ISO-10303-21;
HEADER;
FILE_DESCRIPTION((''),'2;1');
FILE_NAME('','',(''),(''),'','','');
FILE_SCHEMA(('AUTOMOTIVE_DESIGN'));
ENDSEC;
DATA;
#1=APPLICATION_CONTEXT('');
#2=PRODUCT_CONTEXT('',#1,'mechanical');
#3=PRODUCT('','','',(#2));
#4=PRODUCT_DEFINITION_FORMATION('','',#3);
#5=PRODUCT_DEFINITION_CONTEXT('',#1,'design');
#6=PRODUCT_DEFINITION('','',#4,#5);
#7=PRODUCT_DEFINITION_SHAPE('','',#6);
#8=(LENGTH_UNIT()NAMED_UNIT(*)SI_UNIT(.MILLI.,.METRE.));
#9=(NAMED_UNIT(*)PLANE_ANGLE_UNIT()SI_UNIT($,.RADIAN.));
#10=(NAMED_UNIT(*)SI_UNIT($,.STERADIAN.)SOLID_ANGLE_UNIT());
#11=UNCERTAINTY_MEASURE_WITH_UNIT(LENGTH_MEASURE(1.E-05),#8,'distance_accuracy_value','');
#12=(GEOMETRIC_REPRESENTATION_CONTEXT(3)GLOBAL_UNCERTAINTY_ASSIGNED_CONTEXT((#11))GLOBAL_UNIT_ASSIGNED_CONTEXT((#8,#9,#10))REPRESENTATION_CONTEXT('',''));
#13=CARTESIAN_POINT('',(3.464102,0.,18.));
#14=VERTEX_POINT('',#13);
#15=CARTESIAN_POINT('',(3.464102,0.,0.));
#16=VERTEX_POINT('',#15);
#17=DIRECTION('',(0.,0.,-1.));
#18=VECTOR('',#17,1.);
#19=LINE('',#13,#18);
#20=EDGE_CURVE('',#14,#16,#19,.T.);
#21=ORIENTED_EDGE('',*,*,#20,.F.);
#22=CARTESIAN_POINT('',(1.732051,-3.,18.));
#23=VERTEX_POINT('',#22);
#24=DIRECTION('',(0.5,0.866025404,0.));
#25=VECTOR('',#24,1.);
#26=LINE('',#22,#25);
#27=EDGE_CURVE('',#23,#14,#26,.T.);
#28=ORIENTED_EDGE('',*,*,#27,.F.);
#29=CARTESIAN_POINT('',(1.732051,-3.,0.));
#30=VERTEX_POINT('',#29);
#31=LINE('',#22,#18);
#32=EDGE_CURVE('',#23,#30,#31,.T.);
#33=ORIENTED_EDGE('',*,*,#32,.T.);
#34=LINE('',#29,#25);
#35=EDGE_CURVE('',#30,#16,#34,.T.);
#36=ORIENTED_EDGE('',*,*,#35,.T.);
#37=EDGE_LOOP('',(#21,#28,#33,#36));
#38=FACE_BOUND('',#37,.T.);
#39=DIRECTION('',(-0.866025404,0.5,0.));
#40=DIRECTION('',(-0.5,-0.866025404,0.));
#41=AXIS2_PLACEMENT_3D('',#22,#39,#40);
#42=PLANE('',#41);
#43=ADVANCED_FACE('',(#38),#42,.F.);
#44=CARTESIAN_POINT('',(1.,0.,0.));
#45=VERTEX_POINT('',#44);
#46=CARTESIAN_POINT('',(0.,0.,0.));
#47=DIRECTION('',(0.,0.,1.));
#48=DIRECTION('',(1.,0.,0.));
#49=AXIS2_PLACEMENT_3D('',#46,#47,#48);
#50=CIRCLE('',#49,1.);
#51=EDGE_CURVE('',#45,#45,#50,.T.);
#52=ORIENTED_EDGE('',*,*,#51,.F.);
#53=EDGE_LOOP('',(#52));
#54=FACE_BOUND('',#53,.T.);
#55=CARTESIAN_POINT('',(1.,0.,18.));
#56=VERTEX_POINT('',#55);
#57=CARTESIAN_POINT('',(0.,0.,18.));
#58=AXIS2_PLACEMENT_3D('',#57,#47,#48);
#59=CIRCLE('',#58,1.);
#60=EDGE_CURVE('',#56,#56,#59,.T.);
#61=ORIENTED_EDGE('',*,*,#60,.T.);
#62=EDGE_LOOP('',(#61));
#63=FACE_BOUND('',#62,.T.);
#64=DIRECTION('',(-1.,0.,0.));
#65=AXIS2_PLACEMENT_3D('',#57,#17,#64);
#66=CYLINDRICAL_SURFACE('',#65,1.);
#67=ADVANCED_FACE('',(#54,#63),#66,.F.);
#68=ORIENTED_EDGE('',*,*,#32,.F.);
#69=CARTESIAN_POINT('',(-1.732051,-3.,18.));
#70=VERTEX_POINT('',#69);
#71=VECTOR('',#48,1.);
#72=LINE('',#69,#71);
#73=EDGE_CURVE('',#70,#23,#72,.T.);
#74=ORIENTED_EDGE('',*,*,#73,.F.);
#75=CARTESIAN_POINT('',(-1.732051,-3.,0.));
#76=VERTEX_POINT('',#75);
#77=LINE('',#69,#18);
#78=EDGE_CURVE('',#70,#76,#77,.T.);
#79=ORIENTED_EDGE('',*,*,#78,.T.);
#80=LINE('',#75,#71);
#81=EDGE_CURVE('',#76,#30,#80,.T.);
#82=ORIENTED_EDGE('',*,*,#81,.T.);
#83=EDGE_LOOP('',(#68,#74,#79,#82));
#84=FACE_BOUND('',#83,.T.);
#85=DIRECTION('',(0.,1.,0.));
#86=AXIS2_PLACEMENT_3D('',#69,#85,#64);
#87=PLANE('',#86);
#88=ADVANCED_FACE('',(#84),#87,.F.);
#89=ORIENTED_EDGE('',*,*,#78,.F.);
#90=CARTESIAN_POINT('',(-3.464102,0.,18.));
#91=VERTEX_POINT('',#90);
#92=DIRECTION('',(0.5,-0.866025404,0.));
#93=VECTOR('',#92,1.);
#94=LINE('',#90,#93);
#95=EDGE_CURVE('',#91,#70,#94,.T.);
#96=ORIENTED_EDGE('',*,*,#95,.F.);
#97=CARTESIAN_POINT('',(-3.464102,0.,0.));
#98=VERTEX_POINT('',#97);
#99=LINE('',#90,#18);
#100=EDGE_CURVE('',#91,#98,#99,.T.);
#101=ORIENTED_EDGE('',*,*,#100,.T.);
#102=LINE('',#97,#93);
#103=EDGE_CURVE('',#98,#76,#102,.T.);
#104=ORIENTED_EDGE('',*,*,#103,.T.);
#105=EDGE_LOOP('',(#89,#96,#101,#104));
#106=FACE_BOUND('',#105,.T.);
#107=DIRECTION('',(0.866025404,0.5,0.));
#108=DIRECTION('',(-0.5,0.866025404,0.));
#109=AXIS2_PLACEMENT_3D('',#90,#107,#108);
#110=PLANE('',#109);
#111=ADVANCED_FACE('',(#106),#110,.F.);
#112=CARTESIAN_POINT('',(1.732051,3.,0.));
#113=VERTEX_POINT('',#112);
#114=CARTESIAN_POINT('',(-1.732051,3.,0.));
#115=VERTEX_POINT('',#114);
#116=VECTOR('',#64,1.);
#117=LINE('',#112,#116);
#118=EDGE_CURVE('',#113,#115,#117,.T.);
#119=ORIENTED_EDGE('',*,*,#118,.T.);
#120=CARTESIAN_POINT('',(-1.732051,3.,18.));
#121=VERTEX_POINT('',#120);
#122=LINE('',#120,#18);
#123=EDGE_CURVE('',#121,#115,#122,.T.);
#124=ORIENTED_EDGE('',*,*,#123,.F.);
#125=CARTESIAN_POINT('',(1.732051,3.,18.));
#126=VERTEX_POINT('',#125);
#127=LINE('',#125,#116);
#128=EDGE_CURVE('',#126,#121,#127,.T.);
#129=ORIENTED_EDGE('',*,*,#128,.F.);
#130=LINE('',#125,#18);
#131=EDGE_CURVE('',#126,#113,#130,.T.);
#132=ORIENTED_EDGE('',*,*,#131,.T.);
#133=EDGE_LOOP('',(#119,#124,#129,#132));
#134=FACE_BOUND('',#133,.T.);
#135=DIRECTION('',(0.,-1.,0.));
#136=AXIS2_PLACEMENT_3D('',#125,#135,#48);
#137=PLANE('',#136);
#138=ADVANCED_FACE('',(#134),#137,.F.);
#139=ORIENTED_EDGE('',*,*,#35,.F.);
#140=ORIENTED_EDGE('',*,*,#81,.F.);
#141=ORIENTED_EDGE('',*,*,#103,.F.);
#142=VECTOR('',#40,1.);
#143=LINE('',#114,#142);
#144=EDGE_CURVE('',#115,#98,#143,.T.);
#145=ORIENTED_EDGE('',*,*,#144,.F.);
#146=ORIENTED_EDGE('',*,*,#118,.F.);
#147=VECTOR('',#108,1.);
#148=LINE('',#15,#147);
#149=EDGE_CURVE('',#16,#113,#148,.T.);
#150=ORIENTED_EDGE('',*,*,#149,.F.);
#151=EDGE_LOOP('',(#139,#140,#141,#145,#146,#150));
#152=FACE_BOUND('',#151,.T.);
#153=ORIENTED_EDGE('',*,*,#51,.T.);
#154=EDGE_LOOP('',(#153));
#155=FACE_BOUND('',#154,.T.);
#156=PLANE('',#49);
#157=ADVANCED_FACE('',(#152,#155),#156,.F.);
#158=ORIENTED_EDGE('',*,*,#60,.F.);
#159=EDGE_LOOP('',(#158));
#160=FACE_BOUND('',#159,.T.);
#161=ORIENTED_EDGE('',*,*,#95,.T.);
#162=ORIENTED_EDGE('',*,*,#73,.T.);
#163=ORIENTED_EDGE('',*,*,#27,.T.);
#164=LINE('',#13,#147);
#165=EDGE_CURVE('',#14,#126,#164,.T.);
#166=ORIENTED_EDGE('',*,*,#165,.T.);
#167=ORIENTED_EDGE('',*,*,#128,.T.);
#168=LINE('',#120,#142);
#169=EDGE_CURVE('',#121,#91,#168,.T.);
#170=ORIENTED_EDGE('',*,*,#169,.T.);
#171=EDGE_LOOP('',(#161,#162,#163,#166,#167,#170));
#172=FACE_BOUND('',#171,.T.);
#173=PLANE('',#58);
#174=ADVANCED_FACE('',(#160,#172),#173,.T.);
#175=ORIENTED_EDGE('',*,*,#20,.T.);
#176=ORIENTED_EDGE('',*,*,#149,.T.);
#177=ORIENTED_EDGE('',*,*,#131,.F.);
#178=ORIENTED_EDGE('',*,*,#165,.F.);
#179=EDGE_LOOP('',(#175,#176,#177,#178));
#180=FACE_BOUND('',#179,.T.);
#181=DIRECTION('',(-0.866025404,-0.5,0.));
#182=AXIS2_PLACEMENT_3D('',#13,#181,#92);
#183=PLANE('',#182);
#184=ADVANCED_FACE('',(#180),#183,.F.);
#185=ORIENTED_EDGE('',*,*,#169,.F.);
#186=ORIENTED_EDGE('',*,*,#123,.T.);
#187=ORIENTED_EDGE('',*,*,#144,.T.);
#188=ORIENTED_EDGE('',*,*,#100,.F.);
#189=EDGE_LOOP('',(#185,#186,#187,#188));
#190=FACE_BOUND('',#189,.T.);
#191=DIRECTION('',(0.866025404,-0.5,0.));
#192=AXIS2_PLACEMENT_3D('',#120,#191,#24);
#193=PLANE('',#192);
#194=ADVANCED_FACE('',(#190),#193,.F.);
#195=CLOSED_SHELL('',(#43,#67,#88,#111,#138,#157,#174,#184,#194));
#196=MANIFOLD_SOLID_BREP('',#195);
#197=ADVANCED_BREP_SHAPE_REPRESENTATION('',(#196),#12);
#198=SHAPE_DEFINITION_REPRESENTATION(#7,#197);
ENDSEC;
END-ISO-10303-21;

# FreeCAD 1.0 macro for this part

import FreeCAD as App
import Part
import Sketcher
Q = App.Units.Quantity

doc = App.newDocument("Part")
params = doc.addObject("Spreadsheet::Sheet", "Params")
for row, (alias, value) in enumerate([
    ("sketch1_diameter", "2 mm"),
    ("pad1_length", "18 mm"),
], start=1):
    params.set(f"A{row}", alias)
    params.set(f"B{row}", "=" + value)
    params.setAlias(f"B{row}", alias)

body = doc.addObject("PartDesign::Body", "Body")

# Sketch on XY plane
sketch1 = body.newObject("Sketcher::SketchObject", "Sketch")
sketch1.AttachmentSupport = (doc.getObject("XY_Plane"), [""])
sketch1.MapMode = "FlatFace"
sketch1.addGeometry([
    Part.LineSegment(App.Vector(3.464102, 0, 0), App.Vector(1.732051, 3, 0)),  # 0
    Part.LineSegment(App.Vector(1.732051, 3, 0), App.Vector(-1.732051, 3, 0)),  # 1
    Part.LineSegment(App.Vector(-1.732051, 3, 0), App.Vector(-3.464102, 0, 0)),  # 2
    Part.LineSegment(App.Vector(-3.464102, 0, 0), App.Vector(-1.732051, -3, 0)),  # 3
    Part.LineSegment(App.Vector(-1.732051, -3, 0), App.Vector(1.732051, -3, 0)),  # 4
    Part.LineSegment(App.Vector(1.732051, -3, 0), App.Vector(3.464102, 0, 0)),  # 5
    Part.Circle(App.Vector(0, 0, 0), App.Vector(0, 0, 1), 1),  # 6
], False)
sketch1.addConstraint([
    Sketcher.Constraint("Coincident", 0, 2, 1, 1),
    Sketcher.Constraint("Coincident", 1, 2, 2, 1),
    Sketcher.Constraint("Coincident", 2, 2, 3, 1),
    Sketcher.Constraint("Coincident", 3, 2, 4, 1),
    Sketcher.Constraint("Coincident", 4, 2, 5, 1),
    Sketcher.Constraint("Coincident", 5, 2, 0, 1),
    Sketcher.Constraint("Horizontal", 1),
    Sketcher.Constraint("Horizontal", 4),
    Sketcher.Constraint("Coincident", 6, 3, -1, 1),
    Sketcher.Constraint("Symmetric", 0, 2, 3, 2, -1, 1),
    Sketcher.Constraint("Symmetric", 2, 2, 5, 2, -1, 1),
    Sketcher.Constraint("PointOnObject", 2, 2, -1),
    Sketcher.Constraint("Parallel", 2, 5),
    Sketcher.Constraint("Vertical", 1, 2, 3, 2),
    Sketcher.Constraint("Diameter", 6, 2.0),
    Sketcher.Constraint("Angle", 0, Q("120 deg")),
    Sketcher.Constraint("DistanceY", -1, 1, 0, 2, 3.0),
    Sketcher.Constraint("DistanceX", 1, 2, 1, 1, 3.464102),
])
sketch1.setExpression("Constraints[14]", "Params.sketch1_diameter")
pad1 = body.newObject("PartDesign::Pad", "Pad")
pad1.Profile = sketch1
pad1.setExpression("Length", "Params.pad1_length")

doc.recompute()
